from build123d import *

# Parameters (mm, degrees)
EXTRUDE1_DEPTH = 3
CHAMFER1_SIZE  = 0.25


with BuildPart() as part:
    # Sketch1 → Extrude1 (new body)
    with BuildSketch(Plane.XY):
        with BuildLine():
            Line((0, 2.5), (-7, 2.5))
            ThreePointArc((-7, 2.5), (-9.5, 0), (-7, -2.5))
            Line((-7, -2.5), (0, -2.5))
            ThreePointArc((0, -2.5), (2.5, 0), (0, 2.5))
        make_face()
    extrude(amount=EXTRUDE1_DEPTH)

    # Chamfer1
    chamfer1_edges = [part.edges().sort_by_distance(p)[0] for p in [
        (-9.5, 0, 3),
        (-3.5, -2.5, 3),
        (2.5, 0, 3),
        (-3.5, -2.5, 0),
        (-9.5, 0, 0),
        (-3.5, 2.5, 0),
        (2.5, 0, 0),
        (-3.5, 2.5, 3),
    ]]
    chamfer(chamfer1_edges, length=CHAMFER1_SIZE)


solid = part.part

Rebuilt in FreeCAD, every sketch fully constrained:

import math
import FreeCAD as App
import Part
import Sketcher
from FreeCAD import Vector
Q = App.Units.Quantity


def edges_at(feature, points):
    """Names of the edges that pass closest to the given points."""
    edges = feature.Shape.Edges
    near = lambda p: min(range(len(edges)), key=lambda i: edges[i].distToShape(Part.Vertex(*p))[0])
    return sorted({f"Edge{near(p) + 1}" for p in points})

doc = App.newDocument("Part")
params = doc.addObject("Spreadsheet::Sheet", "Params")
for row, (alias, value) in enumerate([
    ("sketch1_radius", "2.5 mm"),
    ("sketch1_width", "7 mm"),
    ("pad1_length", "3 mm"),
    ("chamfer_size", "0.25 mm"),
], start=1):
    params.set(f"A{row}", alias)
    params.set(f"B{row}", "=" + value)
    params.setAlias(f"B{row}", alias)

body = doc.addObject("PartDesign::Body", "Body")

# Sketch on XY plane
sketch1 = doc.addObject("Sketcher::SketchObject", "Sketch")
body.addObject(sketch1)
sketch1.AttachmentSupport = (doc.XY_Plane, [""])
sketch1.MapMode = "FlatFace"
sketch1.addGeometry(Part.LineSegment(Vector(0, 2.5, 0), Vector(-7, 2.5, 0)), False)
sketch1.addGeometry(Part.ArcOfCircle(Part.Circle(Vector(-7, 0, 0), Vector(0, 0, 1), 2.5), math.radians(90), math.radians(270)), False)
sketch1.addGeometry(Part.LineSegment(Vector(-7, -2.5, 0), Vector(0, -2.5, 0)), False)
sketch1.addGeometry(Part.ArcOfCircle(Part.Circle(Vector(0, 0, 0), Vector(0, 0, 1), 2.5), math.radians(-90), math.radians(90)), False)
sketch1.addConstraint(Sketcher.Constraint("Tangent", 0, 2, 1, 1))
sketch1.addConstraint(Sketcher.Constraint("Tangent", 1, 2, 2, 1))
sketch1.addConstraint(Sketcher.Constraint("Tangent", 2, 2, 3, 1))
sketch1.addConstraint(Sketcher.Constraint("Tangent", 3, 2, 0, 1))
sketch1.addConstraint(Sketcher.Constraint("Horizontal", 0))
sketch1.addConstraint(Sketcher.Constraint("Horizontal", 2))
sketch1.addConstraint(Sketcher.Constraint("Coincident", 3, 3, -1, 1))
sketch1.addConstraint(Sketcher.Constraint("Radius", 1, Q("2.5 mm")))
sketch1.addConstraint(Sketcher.Constraint("DistanceX", 0, 2, 0, 1, Q("7 mm")))
sketch1.setExpression("Constraints[7]", "Params.sketch1_radius")
sketch1.setExpression("Constraints[8]", "Params.sketch1_width")
pad1 = doc.addObject("PartDesign::Pad", "Pad")
body.addObject(pad1)
pad1.Profile = sketch1
pad1.setExpression("Length", "Params.pad1_length")
doc.recompute()

chamfer = doc.addObject("PartDesign::Chamfer", "Chamfer")
body.addObject(chamfer)
chamfer.Base = (pad1, edges_at(pad1, [
    (-9.5, 0, 3),
    (-3.5, -2.5, 3),
    (2.5, 0, 3),
    (-3.5, -2.5, 0),
    (-9.5, 0, 0),
    (-3.5, 2.5, 0),
    (2.5, 0, 0),
    (-3.5, 2.5, 3),
]))
chamfer.setExpression("Size", "Params.chamfer_size")

doc.recompute()
